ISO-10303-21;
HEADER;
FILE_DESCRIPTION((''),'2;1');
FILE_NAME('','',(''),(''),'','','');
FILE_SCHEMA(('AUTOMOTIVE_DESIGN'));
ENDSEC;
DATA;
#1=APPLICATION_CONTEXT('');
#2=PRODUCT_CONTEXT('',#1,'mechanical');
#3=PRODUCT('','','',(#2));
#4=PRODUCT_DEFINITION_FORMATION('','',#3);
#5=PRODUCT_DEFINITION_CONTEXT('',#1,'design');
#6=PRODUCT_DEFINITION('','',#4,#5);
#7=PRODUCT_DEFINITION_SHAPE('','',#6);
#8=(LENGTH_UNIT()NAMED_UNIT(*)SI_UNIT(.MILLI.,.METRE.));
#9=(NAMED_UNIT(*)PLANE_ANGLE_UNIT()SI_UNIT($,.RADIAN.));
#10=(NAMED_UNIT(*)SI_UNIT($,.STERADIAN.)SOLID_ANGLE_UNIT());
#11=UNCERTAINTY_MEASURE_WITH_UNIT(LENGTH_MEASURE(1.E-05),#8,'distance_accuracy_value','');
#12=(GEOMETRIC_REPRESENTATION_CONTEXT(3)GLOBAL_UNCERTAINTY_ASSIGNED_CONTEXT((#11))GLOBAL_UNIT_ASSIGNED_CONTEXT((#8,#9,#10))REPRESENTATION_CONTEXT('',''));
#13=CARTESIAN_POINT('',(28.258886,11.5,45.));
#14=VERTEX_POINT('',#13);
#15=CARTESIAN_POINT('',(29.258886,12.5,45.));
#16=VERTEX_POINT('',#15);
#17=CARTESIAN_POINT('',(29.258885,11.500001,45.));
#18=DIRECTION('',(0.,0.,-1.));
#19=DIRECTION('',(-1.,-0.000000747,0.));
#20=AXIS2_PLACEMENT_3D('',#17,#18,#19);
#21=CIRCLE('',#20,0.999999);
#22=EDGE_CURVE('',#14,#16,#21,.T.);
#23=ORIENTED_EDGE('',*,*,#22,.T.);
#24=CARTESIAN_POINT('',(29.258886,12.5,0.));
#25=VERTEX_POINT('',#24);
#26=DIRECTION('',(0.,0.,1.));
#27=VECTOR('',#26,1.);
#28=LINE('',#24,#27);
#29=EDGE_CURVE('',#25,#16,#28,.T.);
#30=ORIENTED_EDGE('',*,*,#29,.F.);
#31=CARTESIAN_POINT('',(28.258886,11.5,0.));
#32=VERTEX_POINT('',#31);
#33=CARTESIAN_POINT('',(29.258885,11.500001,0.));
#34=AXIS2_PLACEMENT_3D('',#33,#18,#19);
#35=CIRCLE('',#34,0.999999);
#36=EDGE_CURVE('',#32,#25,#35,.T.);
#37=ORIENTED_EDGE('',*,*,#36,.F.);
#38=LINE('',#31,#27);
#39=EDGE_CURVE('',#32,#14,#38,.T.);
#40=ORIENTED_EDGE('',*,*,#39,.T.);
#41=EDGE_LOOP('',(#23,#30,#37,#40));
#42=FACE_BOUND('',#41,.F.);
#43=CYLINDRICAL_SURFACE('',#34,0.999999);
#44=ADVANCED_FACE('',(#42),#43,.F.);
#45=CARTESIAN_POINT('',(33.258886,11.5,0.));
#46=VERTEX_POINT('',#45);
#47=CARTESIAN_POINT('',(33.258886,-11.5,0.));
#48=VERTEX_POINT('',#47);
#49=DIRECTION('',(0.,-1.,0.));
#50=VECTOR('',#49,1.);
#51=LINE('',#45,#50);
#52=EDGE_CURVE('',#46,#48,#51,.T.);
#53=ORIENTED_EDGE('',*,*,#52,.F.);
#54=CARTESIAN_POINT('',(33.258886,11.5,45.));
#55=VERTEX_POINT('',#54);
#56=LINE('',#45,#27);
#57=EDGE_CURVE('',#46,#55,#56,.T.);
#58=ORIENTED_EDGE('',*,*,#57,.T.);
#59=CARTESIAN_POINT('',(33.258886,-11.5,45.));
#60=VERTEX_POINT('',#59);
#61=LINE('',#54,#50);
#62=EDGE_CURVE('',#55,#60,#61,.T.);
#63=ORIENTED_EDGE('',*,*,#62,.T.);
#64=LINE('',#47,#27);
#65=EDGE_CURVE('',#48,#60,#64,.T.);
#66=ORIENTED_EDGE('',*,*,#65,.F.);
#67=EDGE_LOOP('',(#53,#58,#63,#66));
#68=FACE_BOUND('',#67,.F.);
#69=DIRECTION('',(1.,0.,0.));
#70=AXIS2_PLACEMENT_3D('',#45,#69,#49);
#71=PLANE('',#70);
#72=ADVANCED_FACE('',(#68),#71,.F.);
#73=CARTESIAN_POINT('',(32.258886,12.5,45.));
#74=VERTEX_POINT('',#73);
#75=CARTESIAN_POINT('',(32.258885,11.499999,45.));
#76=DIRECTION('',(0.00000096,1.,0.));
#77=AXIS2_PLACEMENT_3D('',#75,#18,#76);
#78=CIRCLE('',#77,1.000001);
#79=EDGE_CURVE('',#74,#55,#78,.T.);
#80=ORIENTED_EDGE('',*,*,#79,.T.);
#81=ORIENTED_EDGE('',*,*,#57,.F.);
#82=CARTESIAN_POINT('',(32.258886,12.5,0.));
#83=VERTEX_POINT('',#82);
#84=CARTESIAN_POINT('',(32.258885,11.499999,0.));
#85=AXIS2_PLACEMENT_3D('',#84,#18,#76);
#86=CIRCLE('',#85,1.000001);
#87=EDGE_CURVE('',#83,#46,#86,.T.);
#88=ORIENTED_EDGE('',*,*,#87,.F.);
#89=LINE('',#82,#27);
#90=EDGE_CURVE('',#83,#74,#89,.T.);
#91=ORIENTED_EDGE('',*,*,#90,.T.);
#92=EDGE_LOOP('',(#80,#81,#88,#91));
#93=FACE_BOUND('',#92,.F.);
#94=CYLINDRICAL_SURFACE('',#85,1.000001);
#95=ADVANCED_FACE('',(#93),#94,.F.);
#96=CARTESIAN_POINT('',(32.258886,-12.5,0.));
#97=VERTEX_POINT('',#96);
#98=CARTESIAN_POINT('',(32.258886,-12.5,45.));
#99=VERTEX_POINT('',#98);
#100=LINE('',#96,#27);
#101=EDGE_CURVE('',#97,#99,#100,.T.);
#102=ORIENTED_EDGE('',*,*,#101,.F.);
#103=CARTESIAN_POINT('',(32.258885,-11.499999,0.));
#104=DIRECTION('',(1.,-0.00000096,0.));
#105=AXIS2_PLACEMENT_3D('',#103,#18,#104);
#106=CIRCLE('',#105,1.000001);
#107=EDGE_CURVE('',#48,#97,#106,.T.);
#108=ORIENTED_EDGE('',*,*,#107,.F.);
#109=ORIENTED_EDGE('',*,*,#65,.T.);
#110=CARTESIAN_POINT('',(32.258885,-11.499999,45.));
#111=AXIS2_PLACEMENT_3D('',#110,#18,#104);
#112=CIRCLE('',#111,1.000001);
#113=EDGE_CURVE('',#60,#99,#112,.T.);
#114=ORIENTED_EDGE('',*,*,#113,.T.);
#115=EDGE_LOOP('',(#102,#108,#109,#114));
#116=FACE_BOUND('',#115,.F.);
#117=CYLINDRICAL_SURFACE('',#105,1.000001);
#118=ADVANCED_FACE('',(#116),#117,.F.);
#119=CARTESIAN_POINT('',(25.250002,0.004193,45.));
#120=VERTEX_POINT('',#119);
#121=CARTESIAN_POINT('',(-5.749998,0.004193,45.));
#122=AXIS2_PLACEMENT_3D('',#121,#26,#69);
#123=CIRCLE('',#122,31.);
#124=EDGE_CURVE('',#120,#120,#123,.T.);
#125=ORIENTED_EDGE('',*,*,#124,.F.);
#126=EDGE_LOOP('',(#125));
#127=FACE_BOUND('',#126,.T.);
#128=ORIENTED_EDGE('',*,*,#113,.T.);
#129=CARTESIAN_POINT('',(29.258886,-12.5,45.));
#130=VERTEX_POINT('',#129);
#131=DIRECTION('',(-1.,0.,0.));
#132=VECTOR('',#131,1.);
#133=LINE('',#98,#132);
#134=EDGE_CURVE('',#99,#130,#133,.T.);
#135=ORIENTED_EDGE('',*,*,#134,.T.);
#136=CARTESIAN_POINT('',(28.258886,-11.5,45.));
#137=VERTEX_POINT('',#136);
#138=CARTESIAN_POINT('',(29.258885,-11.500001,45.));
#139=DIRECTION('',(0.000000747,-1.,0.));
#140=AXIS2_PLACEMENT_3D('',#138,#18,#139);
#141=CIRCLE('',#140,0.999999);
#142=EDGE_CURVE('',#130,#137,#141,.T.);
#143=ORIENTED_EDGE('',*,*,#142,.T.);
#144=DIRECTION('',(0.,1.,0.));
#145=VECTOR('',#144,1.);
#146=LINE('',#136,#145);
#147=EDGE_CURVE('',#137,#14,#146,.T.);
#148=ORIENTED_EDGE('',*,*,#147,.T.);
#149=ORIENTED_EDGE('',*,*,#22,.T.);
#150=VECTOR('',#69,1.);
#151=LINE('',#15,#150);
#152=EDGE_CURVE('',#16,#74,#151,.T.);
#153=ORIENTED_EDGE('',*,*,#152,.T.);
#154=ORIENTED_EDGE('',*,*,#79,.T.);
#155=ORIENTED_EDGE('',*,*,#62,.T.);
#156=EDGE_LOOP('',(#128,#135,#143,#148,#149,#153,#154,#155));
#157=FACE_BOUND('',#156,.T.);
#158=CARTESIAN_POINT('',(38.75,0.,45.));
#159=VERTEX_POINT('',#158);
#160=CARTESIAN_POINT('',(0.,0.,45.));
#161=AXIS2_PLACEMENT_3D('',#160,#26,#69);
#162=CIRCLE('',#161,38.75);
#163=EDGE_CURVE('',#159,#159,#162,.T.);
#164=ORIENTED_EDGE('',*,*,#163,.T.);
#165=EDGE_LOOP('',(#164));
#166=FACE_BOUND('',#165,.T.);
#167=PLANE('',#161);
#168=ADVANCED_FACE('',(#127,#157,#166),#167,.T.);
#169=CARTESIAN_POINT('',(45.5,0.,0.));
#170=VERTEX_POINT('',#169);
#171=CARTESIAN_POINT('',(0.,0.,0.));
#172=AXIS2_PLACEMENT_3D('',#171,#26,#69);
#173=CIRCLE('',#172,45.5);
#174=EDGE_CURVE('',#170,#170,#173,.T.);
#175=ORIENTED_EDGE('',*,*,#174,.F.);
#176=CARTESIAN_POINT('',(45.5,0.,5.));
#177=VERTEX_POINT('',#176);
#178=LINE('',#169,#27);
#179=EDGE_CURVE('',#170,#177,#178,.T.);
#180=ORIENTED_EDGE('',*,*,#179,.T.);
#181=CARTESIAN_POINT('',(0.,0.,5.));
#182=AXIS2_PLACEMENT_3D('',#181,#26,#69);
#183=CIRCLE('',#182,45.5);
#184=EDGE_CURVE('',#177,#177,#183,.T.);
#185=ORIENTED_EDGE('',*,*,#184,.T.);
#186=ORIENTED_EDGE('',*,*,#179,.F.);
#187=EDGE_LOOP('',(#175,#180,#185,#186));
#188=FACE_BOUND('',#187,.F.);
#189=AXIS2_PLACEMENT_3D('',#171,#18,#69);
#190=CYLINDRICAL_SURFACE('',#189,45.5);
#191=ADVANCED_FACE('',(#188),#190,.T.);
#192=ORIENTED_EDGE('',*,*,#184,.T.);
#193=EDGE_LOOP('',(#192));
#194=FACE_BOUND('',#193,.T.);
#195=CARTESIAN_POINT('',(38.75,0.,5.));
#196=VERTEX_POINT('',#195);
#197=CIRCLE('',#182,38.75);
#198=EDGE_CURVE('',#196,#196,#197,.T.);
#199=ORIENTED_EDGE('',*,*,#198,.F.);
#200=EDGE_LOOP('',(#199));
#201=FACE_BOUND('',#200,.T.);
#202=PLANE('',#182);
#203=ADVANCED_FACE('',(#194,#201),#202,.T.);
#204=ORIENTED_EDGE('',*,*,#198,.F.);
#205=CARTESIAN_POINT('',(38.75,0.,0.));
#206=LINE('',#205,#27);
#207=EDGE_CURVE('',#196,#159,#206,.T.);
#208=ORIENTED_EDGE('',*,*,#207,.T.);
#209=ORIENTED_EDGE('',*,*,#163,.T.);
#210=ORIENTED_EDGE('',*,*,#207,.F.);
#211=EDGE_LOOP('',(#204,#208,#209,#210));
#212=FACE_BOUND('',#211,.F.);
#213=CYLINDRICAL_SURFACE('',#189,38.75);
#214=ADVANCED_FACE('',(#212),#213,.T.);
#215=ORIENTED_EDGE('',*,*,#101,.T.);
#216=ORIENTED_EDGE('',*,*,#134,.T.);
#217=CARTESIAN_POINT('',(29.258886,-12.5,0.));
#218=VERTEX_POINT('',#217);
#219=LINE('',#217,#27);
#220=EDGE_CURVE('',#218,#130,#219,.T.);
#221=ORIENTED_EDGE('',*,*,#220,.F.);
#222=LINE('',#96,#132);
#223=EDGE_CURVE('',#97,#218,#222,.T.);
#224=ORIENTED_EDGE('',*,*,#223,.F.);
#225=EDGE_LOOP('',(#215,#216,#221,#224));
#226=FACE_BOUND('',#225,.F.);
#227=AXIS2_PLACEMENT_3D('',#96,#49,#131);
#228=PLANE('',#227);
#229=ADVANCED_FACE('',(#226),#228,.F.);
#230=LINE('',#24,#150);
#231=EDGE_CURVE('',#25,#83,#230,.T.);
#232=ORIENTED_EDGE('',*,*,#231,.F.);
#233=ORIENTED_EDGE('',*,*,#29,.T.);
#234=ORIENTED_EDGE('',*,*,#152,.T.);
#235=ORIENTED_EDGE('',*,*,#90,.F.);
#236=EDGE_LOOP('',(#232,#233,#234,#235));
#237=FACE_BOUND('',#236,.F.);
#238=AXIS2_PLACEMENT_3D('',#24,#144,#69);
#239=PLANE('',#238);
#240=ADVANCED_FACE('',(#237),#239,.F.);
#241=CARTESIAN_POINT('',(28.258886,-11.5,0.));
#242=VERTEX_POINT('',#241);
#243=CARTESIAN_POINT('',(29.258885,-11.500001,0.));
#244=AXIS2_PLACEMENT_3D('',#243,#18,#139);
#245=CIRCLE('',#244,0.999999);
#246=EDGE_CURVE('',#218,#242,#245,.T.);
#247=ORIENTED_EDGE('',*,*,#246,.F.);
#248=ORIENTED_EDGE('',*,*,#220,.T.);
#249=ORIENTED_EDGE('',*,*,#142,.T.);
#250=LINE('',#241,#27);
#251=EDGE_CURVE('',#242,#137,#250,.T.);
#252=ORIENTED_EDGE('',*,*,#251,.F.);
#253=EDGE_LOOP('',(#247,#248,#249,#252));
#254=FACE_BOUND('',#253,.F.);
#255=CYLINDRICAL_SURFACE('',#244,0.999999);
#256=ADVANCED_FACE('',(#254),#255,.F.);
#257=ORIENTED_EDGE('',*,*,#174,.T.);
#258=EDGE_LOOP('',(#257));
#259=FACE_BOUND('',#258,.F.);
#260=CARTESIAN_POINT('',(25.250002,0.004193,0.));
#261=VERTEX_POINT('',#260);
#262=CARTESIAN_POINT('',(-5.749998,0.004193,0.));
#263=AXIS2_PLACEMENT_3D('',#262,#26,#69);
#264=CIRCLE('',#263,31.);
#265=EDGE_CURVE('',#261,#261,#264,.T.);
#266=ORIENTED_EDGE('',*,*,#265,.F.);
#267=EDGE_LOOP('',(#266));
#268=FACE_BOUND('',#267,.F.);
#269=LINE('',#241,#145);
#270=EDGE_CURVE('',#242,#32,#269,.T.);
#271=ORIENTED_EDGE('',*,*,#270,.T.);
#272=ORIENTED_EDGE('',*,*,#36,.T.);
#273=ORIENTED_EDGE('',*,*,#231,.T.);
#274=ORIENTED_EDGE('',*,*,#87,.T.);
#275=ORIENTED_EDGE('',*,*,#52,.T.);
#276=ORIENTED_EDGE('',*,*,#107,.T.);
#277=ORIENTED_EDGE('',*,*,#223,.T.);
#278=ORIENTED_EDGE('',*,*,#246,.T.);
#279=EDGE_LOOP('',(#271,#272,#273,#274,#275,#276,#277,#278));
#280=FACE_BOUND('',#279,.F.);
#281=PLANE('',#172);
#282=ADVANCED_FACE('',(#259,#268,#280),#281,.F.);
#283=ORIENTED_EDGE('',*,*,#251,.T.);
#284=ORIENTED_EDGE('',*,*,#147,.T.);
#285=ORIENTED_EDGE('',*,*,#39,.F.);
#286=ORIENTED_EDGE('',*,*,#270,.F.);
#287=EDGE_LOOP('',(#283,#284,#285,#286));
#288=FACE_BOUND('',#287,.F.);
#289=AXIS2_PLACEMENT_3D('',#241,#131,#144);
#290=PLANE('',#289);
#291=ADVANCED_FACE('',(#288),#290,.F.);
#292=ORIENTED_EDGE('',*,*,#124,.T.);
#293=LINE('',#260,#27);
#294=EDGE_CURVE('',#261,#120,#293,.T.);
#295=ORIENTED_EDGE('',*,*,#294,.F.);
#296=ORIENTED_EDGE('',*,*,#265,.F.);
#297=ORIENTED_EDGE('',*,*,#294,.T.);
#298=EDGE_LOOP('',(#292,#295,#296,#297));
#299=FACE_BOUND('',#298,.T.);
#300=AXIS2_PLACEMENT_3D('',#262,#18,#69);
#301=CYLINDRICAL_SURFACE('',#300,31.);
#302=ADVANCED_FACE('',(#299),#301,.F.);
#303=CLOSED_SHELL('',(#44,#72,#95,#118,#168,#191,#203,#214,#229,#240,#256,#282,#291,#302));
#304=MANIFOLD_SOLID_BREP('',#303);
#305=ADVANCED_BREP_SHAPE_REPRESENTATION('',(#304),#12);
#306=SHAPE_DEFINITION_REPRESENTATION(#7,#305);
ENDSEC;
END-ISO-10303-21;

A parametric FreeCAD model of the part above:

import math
import FreeCAD as App
import Part
import Sketcher
from FreeCAD import Vector
Q = App.Units.Quantity

doc = App.newDocument("Part")
body = doc.addObject("PartDesign::Body", "Body")

sketch1 = body.newObject("Sketcher::SketchObject", "Sketch")
sketch1.AttachmentSupport = (doc.getObject("XY_Plane"), [""])
sketch1.MapMode = "FlatFace"
sketch1.addGeometry(Part.Circle(Vector(0, 0, 0), Vector(0, 0, 1), 45.5), False)
sketch1.addGeometry(Part.Circle(Vector(0, 0, 0), Vector(0, 0, 1), 38.75), False)
sketch1.addConstraint(Sketcher.Constraint("Coincident", 0, 3, -1, 1))
sketch1.addConstraint(Sketcher.Constraint("Coincident", 1, 3, -1, 1))
sketch1.addConstraint(Sketcher.Constraint("Diameter", 0, Q("91 mm")))
sketch1.addConstraint(Sketcher.Constraint("Diameter", 1, Q("77.5 mm")))
pad1 = body.newObject("PartDesign::Pad", "Pad")
pad1.Profile = sketch1
pad1.Length = 5

sketch2 = body.newObject("Sketcher::SketchObject", "Sketch001")
sketch2.AttachmentSupport = (doc.getObject("XY_Plane"), [""])
sketch2.MapMode = "FlatFace"
sketch2.addGeometry(Part.Circle(Vector(0, 0, 0), Vector(0, 0, 1), 38.75), False)
sketch2.addGeometry(Part.LineSegment(Vector(33.258886, 11.5, 0), Vector(33.258886, -11.5, 0)), False)
sketch2.addGeometry(Part.ArcOfCircle(Part.Circle(Vector(32.258885, -11.499999, 0), Vector(0, 0, 1), 1.000001), math.radians(-89.999945), math.radians(-0.000055)), False)
sketch2.addGeometry(Part.LineSegment(Vector(32.258886, -12.5, 0), Vector(29.258886, -12.5, 0)), False)
sketch2.addGeometry(Part.ArcOfCircle(Part.Circle(Vector(29.258885, -11.500001, 0), Vector(0, 0, 1), 0.999999), math.radians(179.999957), math.radians(270.000043)), False)
sketch2.addGeometry(Part.LineSegment(Vector(28.258886, -11.5, 0), Vector(28.258886, 11.5, 0)), False)
sketch2.addGeometry(Part.ArcOfCircle(Part.Circle(Vector(29.258885, 11.500001, 0), Vector(0, 0, 1), 0.999999), math.radians(89.999957), math.radians(180.000043)), False)
sketch2.addGeometry(Part.LineSegment(Vector(29.258886, 12.5, 0), Vector(32.258886, 12.5, 0)), False)
sketch2.addGeometry(Part.ArcOfCircle(Part.Circle(Vector(32.258885, 11.499999, 0), Vector(0, 0, 1), 1.000001), math.radians(0.000055), math.radians(89.999945)), False)
sketch2.addGeometry(Part.Circle(Vector(-5.749998, 0.004193, 0), Vector(0, 0, 1), 31), False)
sketch2.addConstraint(Sketcher.Constraint("Tangent", 1, 2, 2, 2))
sketch2.addConstraint(Sketcher.Constraint("Tangent", 2, 1, 3, 1))
sketch2.addConstraint(Sketcher.Constraint("Tangent", 3, 2, 4, 2))
sketch2.addConstraint(Sketcher.Constraint("Tangent", 4, 1, 5, 1))
sketch2.addConstraint(Sketcher.Constraint("Tangent", 5, 2, 6, 2))
sketch2.addConstraint(Sketcher.Constraint("Tangent", 6, 1, 7, 1))
sketch2.addConstraint(Sketcher.Constraint("Tangent", 7, 2, 8, 2))
sketch2.addConstraint(Sketcher.Constraint("Tangent", 8, 1, 1, 1))
sketch2.addConstraint(Sketcher.Constraint("Vertical", 1))
sketch2.addConstraint(Sketcher.Constraint("Horizontal", 3))
sketch2.addConstraint(Sketcher.Constraint("Vertical", 5))
sketch2.addConstraint(Sketcher.Constraint("Horizontal", 7))
sketch2.addConstraint(Sketcher.Constraint("Coincident", 0, 3, -1, 1))
sketch2.addConstraint(Sketcher.Constraint("Equal", 2, 4))
sketch2.addConstraint(Sketcher.Constraint("Equal", 4, 6))
sketch2.addConstraint(Sketcher.Constraint("Equal", 6, 8))
sketch2.addConstraint(Sketcher.Constraint("Diameter", 9, Q("62 mm")))
sketch2.addConstraint(Sketcher.Constraint("Radius", 2, Q("1.000001 mm")))
sketch2.addConstraint(Sketcher.Constraint("Diameter", 0, Q("77.5 mm")))
sketch2.addConstraint(Sketcher.Constraint("DistanceX", 3, 2, 3, 1, Q("3 mm")))
sketch2.addConstraint(Sketcher.Constraint("DistanceY", 1, 2, 1, 1, Q("23 mm")))
sketch2.addConstraint(Sketcher.Constraint("DistanceY", 2, 3, -1, 1, Q("11.499999 mm")))
sketch2.addConstraint(Sketcher.Constraint("DistanceX", -1, 1, 2, 3, Q("32.258885 mm")))
sketch2.addConstraint(Sketcher.Constraint("DistanceX", 9, 3, -1, 1, Q("5.749998 mm")))
sketch2.addConstraint(Sketcher.Constraint("DistanceY", -1, 1, 9, 3, Q("0.004193 mm")))
pad2 = body.newObject("PartDesign::Pad", "Pad001")
pad2.Profile = sketch2
pad2.Length = 45

doc.recompute()
